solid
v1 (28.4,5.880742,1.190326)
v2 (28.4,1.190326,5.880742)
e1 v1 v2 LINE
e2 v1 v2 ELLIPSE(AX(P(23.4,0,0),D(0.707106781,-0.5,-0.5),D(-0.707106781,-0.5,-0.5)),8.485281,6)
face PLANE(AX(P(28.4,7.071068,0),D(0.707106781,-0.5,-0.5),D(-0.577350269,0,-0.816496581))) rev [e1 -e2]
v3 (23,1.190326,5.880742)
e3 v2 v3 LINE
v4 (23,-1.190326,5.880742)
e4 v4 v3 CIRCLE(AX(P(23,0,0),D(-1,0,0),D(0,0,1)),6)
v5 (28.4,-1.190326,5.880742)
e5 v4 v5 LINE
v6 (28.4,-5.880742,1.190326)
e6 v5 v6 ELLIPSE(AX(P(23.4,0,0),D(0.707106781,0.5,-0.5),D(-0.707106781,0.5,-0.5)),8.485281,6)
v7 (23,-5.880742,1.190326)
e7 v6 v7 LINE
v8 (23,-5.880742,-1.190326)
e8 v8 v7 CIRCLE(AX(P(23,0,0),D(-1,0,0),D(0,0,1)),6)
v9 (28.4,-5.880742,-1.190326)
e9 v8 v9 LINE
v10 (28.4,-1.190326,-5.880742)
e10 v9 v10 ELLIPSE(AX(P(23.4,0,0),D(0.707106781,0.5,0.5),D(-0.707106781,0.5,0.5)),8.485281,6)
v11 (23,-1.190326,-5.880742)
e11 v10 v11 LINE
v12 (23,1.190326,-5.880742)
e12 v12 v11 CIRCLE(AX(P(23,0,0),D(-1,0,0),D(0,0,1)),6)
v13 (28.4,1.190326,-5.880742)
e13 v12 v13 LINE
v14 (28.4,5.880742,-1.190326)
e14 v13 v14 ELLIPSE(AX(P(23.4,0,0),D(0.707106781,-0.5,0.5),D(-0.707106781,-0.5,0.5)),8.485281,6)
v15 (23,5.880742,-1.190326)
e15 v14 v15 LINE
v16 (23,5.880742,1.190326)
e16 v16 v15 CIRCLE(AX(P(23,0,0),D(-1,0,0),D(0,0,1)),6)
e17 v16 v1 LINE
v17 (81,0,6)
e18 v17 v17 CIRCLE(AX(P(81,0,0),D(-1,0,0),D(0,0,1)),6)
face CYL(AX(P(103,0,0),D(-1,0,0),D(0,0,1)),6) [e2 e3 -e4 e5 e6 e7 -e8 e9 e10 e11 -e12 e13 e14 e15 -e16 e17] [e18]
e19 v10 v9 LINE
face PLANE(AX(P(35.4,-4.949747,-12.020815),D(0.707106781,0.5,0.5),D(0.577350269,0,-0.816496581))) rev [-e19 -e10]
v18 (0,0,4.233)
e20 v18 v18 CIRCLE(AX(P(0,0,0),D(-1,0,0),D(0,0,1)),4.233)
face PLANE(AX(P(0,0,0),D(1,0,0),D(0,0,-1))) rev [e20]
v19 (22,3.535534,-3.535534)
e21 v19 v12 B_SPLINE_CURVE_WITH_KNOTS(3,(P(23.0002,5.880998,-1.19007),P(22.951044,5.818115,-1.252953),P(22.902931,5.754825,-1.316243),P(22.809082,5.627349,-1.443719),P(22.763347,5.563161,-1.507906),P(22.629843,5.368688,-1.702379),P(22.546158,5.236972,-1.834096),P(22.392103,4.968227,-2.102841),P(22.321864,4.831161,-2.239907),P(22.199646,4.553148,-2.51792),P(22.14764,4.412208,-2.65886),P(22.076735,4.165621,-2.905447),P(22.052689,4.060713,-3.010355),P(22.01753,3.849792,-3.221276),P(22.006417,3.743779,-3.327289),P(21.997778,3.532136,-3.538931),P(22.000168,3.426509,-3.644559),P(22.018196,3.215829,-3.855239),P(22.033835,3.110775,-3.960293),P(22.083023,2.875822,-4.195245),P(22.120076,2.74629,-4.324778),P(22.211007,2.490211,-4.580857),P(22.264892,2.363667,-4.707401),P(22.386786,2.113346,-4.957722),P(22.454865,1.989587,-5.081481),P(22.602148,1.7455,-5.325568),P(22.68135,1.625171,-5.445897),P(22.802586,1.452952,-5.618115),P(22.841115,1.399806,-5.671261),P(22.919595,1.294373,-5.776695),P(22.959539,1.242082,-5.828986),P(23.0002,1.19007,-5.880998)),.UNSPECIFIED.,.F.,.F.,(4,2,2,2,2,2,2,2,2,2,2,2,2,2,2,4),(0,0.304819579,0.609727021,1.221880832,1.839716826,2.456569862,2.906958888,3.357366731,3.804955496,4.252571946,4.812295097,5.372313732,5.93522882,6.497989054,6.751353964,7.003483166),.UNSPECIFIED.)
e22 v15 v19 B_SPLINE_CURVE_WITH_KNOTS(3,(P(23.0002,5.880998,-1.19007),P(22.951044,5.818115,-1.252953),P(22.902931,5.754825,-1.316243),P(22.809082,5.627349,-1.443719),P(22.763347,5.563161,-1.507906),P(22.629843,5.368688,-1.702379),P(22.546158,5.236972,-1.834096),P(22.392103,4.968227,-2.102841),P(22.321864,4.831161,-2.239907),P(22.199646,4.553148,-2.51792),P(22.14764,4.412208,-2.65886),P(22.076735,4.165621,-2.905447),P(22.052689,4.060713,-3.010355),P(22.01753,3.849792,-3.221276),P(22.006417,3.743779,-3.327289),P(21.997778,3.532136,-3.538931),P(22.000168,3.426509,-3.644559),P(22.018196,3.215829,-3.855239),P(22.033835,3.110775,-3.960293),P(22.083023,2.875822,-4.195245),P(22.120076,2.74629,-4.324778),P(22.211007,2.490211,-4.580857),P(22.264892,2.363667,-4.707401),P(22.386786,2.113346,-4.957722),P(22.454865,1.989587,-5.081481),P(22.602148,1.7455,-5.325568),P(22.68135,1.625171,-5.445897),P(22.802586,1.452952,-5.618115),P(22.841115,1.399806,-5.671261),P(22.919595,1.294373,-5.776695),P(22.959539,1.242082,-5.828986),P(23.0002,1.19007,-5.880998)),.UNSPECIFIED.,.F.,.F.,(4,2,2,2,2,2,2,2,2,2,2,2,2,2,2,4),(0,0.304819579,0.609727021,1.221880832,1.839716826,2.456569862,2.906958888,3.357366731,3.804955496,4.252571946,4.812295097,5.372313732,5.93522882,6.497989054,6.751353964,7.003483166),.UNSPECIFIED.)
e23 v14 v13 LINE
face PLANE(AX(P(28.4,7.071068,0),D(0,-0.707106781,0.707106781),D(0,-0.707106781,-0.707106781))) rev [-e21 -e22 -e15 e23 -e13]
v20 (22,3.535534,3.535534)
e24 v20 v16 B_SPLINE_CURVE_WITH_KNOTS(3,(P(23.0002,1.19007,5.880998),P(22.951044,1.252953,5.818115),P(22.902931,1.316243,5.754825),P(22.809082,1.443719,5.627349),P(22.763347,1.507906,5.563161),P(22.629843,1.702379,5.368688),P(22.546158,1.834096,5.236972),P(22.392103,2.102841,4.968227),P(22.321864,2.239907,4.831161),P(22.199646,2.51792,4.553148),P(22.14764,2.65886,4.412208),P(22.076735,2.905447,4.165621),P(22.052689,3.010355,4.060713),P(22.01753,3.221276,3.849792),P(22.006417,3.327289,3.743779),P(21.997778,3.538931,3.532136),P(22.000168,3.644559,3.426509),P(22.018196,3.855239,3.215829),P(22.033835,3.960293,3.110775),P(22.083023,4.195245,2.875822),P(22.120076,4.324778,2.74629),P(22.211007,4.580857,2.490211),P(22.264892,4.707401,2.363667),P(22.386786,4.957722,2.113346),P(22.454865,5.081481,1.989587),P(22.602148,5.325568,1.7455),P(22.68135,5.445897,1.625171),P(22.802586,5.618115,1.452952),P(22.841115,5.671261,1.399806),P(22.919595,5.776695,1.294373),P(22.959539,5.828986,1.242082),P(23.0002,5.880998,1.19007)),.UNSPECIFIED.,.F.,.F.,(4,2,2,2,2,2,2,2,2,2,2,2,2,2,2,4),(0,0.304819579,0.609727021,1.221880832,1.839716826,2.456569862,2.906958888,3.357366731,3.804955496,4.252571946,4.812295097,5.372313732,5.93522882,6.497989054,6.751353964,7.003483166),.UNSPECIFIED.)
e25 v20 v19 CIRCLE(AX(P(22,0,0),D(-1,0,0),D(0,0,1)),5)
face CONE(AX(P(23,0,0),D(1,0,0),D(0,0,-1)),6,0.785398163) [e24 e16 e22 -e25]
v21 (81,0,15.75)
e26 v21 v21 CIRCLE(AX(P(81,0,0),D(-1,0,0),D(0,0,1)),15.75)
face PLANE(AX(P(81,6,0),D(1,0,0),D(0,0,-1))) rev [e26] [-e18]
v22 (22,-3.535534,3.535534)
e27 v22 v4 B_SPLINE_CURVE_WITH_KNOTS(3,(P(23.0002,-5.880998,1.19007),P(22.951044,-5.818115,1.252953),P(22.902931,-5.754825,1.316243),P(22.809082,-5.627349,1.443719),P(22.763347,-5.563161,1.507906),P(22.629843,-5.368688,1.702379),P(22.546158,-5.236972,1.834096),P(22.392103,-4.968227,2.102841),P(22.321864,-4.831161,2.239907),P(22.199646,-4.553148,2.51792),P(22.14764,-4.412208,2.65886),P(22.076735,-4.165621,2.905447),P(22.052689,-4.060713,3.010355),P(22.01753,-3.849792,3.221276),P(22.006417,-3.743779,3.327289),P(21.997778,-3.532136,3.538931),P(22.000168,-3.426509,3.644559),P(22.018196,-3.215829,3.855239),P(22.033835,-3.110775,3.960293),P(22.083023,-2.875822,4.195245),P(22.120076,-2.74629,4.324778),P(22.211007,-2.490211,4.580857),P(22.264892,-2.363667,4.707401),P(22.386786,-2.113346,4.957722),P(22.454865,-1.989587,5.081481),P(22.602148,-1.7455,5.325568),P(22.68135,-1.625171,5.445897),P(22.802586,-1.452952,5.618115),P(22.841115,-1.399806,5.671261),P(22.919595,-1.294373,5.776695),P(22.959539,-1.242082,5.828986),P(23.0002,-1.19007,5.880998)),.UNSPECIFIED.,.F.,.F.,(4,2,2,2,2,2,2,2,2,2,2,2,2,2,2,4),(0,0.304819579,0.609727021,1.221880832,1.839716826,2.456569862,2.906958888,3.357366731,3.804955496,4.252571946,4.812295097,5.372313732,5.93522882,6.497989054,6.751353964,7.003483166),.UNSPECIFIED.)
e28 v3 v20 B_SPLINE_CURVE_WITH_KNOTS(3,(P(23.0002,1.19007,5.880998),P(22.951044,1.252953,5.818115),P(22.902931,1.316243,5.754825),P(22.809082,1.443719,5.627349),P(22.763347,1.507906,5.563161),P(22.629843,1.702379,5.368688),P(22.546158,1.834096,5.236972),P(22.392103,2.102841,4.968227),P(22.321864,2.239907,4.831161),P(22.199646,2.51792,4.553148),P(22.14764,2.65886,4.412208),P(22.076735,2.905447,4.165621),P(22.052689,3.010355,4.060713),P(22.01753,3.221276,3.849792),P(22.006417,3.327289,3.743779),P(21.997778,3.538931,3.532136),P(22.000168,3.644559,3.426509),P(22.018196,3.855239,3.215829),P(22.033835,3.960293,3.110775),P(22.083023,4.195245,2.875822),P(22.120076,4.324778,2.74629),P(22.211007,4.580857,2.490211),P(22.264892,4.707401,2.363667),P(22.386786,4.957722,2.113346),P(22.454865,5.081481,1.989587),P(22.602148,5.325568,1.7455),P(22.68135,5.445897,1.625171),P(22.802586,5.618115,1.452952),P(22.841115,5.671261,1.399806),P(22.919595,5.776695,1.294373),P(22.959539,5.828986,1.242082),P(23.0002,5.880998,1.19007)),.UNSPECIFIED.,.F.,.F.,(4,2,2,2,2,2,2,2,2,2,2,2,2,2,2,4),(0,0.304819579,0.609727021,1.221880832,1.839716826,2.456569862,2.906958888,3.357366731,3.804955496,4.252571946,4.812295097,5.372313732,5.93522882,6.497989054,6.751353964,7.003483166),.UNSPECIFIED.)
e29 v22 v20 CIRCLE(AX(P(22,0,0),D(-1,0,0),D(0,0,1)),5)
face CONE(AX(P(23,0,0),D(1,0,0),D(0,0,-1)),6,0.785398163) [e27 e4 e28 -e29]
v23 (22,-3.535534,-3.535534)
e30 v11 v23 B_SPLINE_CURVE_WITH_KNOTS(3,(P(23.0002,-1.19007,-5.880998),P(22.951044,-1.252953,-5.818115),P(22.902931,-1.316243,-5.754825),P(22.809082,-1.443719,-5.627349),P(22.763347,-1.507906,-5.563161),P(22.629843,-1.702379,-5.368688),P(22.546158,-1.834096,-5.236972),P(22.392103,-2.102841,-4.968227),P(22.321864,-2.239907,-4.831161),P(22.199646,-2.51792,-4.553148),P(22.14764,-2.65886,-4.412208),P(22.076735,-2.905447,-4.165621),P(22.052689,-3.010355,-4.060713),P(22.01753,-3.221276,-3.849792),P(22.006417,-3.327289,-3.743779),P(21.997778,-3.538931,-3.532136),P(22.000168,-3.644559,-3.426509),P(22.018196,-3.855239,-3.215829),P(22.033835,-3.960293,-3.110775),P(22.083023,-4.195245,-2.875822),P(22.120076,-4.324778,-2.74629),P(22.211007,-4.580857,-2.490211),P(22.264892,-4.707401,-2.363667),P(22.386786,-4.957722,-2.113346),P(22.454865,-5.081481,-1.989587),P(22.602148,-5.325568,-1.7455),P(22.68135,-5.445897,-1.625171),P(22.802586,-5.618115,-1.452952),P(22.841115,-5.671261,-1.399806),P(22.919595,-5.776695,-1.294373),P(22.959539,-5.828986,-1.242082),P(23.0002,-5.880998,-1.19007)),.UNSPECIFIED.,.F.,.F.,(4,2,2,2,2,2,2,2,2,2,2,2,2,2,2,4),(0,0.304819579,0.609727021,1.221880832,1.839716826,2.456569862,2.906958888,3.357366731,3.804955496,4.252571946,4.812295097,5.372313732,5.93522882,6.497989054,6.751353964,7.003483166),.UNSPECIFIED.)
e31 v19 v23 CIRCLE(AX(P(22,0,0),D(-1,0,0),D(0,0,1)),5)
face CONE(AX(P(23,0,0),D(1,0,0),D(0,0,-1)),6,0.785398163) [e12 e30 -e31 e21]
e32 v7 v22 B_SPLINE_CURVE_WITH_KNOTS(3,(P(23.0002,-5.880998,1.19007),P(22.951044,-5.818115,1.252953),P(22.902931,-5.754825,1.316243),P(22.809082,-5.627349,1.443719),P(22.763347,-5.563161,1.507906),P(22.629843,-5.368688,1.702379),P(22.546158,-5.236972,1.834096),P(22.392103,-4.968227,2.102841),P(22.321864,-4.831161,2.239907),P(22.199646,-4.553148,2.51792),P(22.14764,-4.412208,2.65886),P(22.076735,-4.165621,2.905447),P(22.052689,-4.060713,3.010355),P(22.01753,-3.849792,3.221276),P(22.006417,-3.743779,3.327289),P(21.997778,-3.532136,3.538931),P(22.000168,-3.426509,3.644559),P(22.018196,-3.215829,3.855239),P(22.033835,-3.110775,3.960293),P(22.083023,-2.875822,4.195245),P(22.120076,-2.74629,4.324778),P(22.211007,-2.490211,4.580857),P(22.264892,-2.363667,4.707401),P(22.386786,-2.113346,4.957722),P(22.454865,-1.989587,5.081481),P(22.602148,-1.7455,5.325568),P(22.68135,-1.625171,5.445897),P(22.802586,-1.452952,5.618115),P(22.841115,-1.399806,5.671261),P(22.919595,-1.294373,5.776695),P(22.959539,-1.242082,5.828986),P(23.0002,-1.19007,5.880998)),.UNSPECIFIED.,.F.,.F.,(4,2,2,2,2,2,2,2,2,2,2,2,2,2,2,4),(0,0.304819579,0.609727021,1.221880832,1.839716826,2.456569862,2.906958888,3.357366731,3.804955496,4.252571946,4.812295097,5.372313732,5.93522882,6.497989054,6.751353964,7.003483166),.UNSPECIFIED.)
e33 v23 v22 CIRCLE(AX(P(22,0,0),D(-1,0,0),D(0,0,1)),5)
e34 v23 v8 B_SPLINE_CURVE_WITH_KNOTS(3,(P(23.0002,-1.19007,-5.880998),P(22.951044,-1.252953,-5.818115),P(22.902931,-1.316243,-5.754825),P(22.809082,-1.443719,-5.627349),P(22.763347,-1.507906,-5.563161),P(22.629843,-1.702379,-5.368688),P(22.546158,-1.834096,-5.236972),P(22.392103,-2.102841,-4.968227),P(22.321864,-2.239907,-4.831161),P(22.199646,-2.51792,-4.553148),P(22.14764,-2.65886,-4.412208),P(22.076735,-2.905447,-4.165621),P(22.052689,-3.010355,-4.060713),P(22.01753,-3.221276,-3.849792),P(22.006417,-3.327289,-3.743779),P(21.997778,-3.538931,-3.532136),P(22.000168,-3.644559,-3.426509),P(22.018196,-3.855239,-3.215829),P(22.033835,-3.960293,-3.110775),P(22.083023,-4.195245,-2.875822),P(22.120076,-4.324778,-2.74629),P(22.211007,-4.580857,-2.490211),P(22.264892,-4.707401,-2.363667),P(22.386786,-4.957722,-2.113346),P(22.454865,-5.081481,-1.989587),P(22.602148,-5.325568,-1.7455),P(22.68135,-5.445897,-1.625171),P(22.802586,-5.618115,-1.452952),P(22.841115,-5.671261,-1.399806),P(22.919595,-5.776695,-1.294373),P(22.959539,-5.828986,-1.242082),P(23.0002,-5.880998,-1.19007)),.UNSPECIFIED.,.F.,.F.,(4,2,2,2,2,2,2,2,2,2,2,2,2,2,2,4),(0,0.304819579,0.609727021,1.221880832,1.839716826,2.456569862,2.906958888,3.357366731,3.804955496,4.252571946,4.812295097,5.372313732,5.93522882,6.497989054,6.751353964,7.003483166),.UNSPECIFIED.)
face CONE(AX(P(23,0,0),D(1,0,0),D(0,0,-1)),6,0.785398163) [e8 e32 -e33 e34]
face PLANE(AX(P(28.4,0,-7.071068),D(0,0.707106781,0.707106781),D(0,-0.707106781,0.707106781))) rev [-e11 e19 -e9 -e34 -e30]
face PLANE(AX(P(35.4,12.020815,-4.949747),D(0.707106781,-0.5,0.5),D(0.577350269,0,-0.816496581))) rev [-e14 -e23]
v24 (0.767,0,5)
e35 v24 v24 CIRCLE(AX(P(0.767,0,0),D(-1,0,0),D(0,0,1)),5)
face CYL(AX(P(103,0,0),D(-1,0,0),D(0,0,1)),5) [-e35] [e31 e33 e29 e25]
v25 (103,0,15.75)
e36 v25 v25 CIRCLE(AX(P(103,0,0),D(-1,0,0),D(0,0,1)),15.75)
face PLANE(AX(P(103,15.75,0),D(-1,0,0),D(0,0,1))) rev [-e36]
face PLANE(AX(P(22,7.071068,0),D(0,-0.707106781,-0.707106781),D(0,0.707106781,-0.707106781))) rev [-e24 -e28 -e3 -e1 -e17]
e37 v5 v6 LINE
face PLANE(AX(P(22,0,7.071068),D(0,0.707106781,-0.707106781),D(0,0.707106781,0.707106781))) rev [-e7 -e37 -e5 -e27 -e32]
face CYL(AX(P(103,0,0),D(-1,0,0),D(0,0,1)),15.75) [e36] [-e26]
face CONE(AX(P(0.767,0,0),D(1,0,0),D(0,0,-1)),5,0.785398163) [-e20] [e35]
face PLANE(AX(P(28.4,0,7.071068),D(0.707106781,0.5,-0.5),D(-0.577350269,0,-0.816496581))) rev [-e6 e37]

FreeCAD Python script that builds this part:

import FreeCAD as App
import Part
import Sketcher
Q = App.Units.Quantity


def add_polygon(sketch, points):
    """Adds a closed chain of lines whose ends are joined by coincident constraints."""
    first, n = sketch.GeometryCount, len(points)
    for a, b in zip(points, points[1:] + points[:1]):
        sketch.addGeometry(Part.LineSegment(App.Vector(*a, 0), App.Vector(*b, 0)), False)
    for i in range(n):
        sketch.addConstraint(Sketcher.Constraint("Coincident", first + i, 2, first + (i + 1) % n, 1))

doc = App.newDocument("Part")
body = doc.addObject("PartDesign::Body", "Body")

# Sketch on XY plane
sketch1 = doc.addObject("Sketcher::SketchObject", "Sketch")
body.addObject(sketch1)
sketch1.AttachmentSupport = (doc.XY_Plane, [""])
sketch1.MapMode = "FlatFace"
add_polygon(sketch1, [(0, 4.233), (0, 0), (103, 0), (103, 15.75), (81, 15.75), (81, 6), (23, 6), (22, 5), (0.767, 5)])  # lines 0-8
sketch1.addConstraint([
    Sketcher.Constraint("Vertical", 0),
    Sketcher.Constraint("Horizontal", 1),
    Sketcher.Constraint("Vertical", 2),
    Sketcher.Constraint("Horizontal", 3),
    Sketcher.Constraint("Vertical", 4),
    Sketcher.Constraint("Horizontal", 5),
    Sketcher.Constraint("Horizontal", 7),
    Sketcher.Constraint("Coincident", 0, 2, -1, 1),
    Sketcher.Constraint("Parallel", 6, 8),
    Sketcher.Constraint("DistanceX", 1, 1, 1, 2, 103.0),
    Sketcher.Constraint("DistanceX", 3, 2, 3, 1, 22.0),
    Sketcher.Constraint("DistanceX", 5, 2, 5, 1, 58.0),
    Sketcher.Constraint("Angle", 6, Q("-135 deg")),
    Sketcher.Constraint("DistanceY", -1, 1, 4, 2, 6.0),
    Sketcher.Constraint("DistanceX", -1, 1, 6, 2, 22.0),
    Sketcher.Constraint("DistanceY", 2, 1, 2, 2, 15.75),
    Sketcher.Constraint("DistanceX", 7, 2, 7, 1, 21.233),
])
revolution = doc.addObject("PartDesign::Revolution", "Revolution")
body.addObject(revolution)
revolution.Profile = sketch1
revolution.ReferenceAxis = (sketch1, ["H_Axis"])
revolution.Angle = 360

# Sketch on an angled plane
sketch2 = doc.addObject("Sketcher::SketchObject", "Sketch001")
body.addObject(sketch2)
sketch2.Placement = App.Placement(App.Vector(0, 0, 0), App.Rotation(App.Vector(1, 0, 0), App.Vector(0, 0.707106781, 0.707106781), App.Vector(0, -0.707106781, 0.707106781), "ZXY"))
add_polygon(sketch2, [(-5, -12), (35.4, -12), (28.4, -5), (22, -5), (19.8, -7.2), (19.8, -10), (-3, -10), (-3, 10), (19.8, 10), (19.8, 7.2), (22, 5), (28.4, 5), (35.4, 12), (-5, 12)])  # lines 0-13
sketch2.addConstraint([
    Sketcher.Constraint("Horizontal", 0),
    Sketcher.Constraint("Horizontal", 2),
    Sketcher.Constraint("Vertical", 4),
    Sketcher.Constraint("Horizontal", 5),
    Sketcher.Constraint("Vertical", 6),
    Sketcher.Constraint("Horizontal", 7),
    Sketcher.Constraint("Vertical", 8),
    Sketcher.Constraint("Horizontal", 10),
    Sketcher.Constraint("Horizontal", 12),
    Sketcher.Constraint("Vertical", 13),
    Sketcher.Constraint("Symmetric", 4, 2, 7, 2, -1),
    Sketcher.Constraint("Symmetric", 2, 2, 9, 2, -1),
    Sketcher.Constraint("Symmetric", 0, 2, 11, 2, -1),
    Sketcher.Constraint("Perpendicular", 1, 3),
    Sketcher.Constraint("Perpendicular", 3, 9),
    Sketcher.Constraint("Perpendicular", 9, 11),
    Sketcher.Constraint("Vertical", 1, 2, 10, 2),
    Sketcher.Constraint("DistanceY", 6, 1, 6, 2, 20.0),
    Sketcher.Constraint("DistanceY", 13, 2, 13, 1, 24.0),
    Sketcher.Constraint("DistanceX", 0, 1, 0, 2, 40.4),
    Sketcher.Constraint("DistanceX", 2, 2, 2, 1, 6.4),
    Sketcher.Constraint("DistanceX", 5, 2, 5, 1, 22.8),
    Sketcher.Constraint("DistanceY", 4, 2, 4, 1, 2.8),
    Sketcher.Constraint("DistanceY", 1, 2, -1, 1, 5.0),
    Sketcher.Constraint("DistanceX", -1, 1, 2, 2, 22.0),
])
pocket1 = doc.addObject("PartDesign::Pocket", "Pocket")
body.addObject(pocket1)
pocket1.Profile = sketch2
pocket1.Type = "ThroughAll"
pocket1.Midplane = True

# Sketch on an angled plane
sketch3 = doc.addObject("Sketcher::SketchObject", "Sketch002")
body.addObject(sketch3)
sketch3.Placement = App.Placement(App.Vector(0, 0, 0), App.Rotation(App.Vector(-1, 0, 0), App.Vector(0, 0.707106781, -0.707106781), App.Vector(0, -0.707106781, -0.707106781), "ZXY"))
add_polygon(sketch3, [(5, 12), (-35.4, 12), (-28.4, 5), (-22, 5), (-19.8, 7.2), (-19.8, 10), (3, 10), (3, -10), (-19.8, -10), (-19.8, -7.2), (-22, -5), (-28.4, -5), (-35.4, -12), (5, -12)])  # lines 0-13
sketch3.addConstraint([
    Sketcher.Constraint("Horizontal", 0),
    Sketcher.Constraint("Horizontal", 2),
    Sketcher.Constraint("Vertical", 4),
    Sketcher.Constraint("Horizontal", 5),
    Sketcher.Constraint("Vertical", 6),
    Sketcher.Constraint("Horizontal", 7),
    Sketcher.Constraint("Vertical", 8),
    Sketcher.Constraint("Horizontal", 10),
    Sketcher.Constraint("Horizontal", 12),
    Sketcher.Constraint("Vertical", 13),
    Sketcher.Constraint("Symmetric", 4, 2, 7, 2, -1),
    Sketcher.Constraint("Symmetric", 2, 2, 9, 2, -1),
    Sketcher.Constraint("Symmetric", 0, 2, 11, 2, -1),
    Sketcher.Constraint("Perpendicular", 1, 3),
    Sketcher.Constraint("Perpendicular", 3, 9),
    Sketcher.Constraint("Perpendicular", 9, 11),
    Sketcher.Constraint("Vertical", 1, 2, 10, 2),
    Sketcher.Constraint("DistanceY", 6, 2, 6, 1, 20.0),
    Sketcher.Constraint("DistanceY", 13, 1, 13, 2, 24.0),
    Sketcher.Constraint("DistanceX", 0, 2, 0, 1, 40.4),
    Sketcher.Constraint("DistanceX", 2, 1, 2, 2, 6.4),
    Sketcher.Constraint("DistanceX", 5, 1, 5, 2, 22.8),
    Sketcher.Constraint("DistanceY", 4, 1, 4, 2, 2.8),
    Sketcher.Constraint("DistanceY", -1, 1, 1, 2, 5.0),
    Sketcher.Constraint("DistanceX", 2, 2, -1, 1, 22.0),
])
pocket2 = doc.addObject("PartDesign::Pocket", "Pocket001")
body.addObject(pocket2)
pocket2.Profile = sketch3
pocket2.Type = "ThroughAll"
pocket2.Midplane = True

doc.recompute()
